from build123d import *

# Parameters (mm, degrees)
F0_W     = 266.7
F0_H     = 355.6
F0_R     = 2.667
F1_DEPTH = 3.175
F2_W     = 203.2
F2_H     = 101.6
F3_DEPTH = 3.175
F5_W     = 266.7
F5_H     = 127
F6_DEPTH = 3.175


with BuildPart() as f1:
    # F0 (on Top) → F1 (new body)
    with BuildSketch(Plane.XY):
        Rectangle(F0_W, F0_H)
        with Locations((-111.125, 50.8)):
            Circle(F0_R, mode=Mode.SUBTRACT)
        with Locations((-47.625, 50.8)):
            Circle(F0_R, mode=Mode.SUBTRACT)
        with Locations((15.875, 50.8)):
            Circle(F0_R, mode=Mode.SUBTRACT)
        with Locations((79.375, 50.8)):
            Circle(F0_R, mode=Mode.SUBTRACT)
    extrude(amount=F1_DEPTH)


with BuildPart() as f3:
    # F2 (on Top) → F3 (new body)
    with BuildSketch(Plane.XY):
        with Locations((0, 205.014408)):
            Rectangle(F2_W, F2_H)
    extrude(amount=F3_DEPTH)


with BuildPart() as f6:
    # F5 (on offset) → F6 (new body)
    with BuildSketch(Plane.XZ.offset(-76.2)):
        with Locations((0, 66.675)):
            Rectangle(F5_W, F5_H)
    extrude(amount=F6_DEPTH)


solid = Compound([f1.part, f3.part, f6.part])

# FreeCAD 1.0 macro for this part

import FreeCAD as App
import Part
import Sketcher

V = App.Vector
Q = App.Units.Quantity

doc = App.newDocument("Part")
body = doc.addObject("PartDesign::Body", "Body")

sketch1 = body.newObject("Sketcher::SketchObject", "Sketch")
sketch1.AttachmentSupport = (doc.getObject("XY_Plane"), [""])
sketch1.MapMode = "FlatFace"
sketch1.addGeometry(Part.LineSegment(V(-133.3, 177.8, 0), V(-133.3, -177.8, 0)), False)
sketch1.addGeometry(Part.LineSegment(V(-133.3, -177.8, 0), V(133.3, -177.8, 0)), False)
sketch1.addGeometry(Part.LineSegment(V(133.3, -177.8, 0), V(133.3, 177.8, 0)), False)
sketch1.addGeometry(Part.LineSegment(V(133.3, 177.8, 0), V(-133.3, 177.8, 0)), False)
sketch1.addGeometry(Part.Circle(V(-111.1, 50.8, 0), V(0, 0, 1), 2.7), False)
sketch1.addGeometry(Part.Circle(V(-47.6, 50.8, 0), V(0, 0, 1), 2.7), False)
sketch1.addGeometry(Part.Circle(V(15.9, 50.8, 0), V(0, 0, 1), 2.7), False)
sketch1.addGeometry(Part.Circle(V(79.4, 50.8, 0), V(0, 0, 1), 2.7), False)
sketch1.addConstraint(Sketcher.Constraint("Coincident", 0, 2, 1, 1))
sketch1.addConstraint(Sketcher.Constraint("Coincident", 1, 2, 2, 1))
sketch1.addConstraint(Sketcher.Constraint("Coincident", 2, 2, 3, 1))
sketch1.addConstraint(Sketcher.Constraint("Coincident", 3, 2, 0, 1))
sketch1.addConstraint(Sketcher.Constraint("Vertical", 0))
sketch1.addConstraint(Sketcher.Constraint("Horizontal", 1))
sketch1.addConstraint(Sketcher.Constraint("Vertical", 2))
sketch1.addConstraint(Sketcher.Constraint("Horizontal", 3))
sketch1.addConstraint(Sketcher.Constraint("Equal", 4, 5))
sketch1.addConstraint(Sketcher.Constraint("Equal", 5, 6))
sketch1.addConstraint(Sketcher.Constraint("Equal", 6, 7))
sketch1.addConstraint(Sketcher.Constraint("Symmetric", 0, 2, 2, 2, -1, 1))
sketch1.addConstraint(Sketcher.Constraint("Horizontal", 4, 3, 5, 3))
sketch1.addConstraint(Sketcher.Constraint("Horizontal", 5, 3, 6, 3))
sketch1.addConstraint(Sketcher.Constraint("Horizontal", 6, 3, 7, 3))
sketch1.addConstraint(Sketcher.Constraint("Diameter", 4, Q("0.21 in")))
sketch1.addConstraint(Sketcher.Constraint("DistanceY", 0, 2, 0, 1, Q("14 in")))
sketch1.addConstraint(Sketcher.Constraint("DistanceX", 1, 1, 1, 2, Q("10.5 in")))
sketch1.addConstraint(Sketcher.Constraint("DistanceY", -1, 1, 4, 3, Q("2 in")))
sketch1.addConstraint(Sketcher.Constraint("DistanceX", 4, 3, 6, 3, Q("5 in")))
sketch1.addConstraint(Sketcher.Constraint("DistanceX", 5, 3, 7, 3, Q("5 in")))
sketch1.addConstraint(Sketcher.Constraint("DistanceX", 4, 3, 5, 3, Q("2.5 in")))
sketch1.addConstraint(Sketcher.Constraint("DistanceX", 4, 3, -1, 1, Q("4.375 in")))
pad1 = body.newObject("PartDesign::Pad", "Pad")
pad1.Profile = sketch1
pad1.Length = Q("0.125 in")
body2 = doc.addObject("PartDesign::Body", "Body001")

sketch2 = body2.newObject("Sketcher::SketchObject", "Sketch001")
sketch2.AttachmentSupport = (doc.getObject("XY_Plane001"), [""])
sketch2.MapMode = "FlatFace"
sketch2.addGeometry(Part.LineSegment(V(-102, 256, 0), V(-102, 154, 0)), False)
sketch2.addGeometry(Part.LineSegment(V(-102, 154, 0), V(102, 154, 0)), False)
sketch2.addGeometry(Part.LineSegment(V(102, 154, 0), V(102, 256, 0)), False)
sketch2.addGeometry(Part.LineSegment(V(102, 256, 0), V(-102, 256, 0)), False)
sketch2.addConstraint(Sketcher.Constraint("Coincident", 0, 2, 1, 1))
sketch2.addConstraint(Sketcher.Constraint("Coincident", 1, 2, 2, 1))
sketch2.addConstraint(Sketcher.Constraint("Coincident", 2, 2, 3, 1))
sketch2.addConstraint(Sketcher.Constraint("Coincident", 3, 2, 0, 1))
sketch2.addConstraint(Sketcher.Constraint("Vertical", 0))
sketch2.addConstraint(Sketcher.Constraint("Horizontal", 1))
sketch2.addConstraint(Sketcher.Constraint("Vertical", 2))
sketch2.addConstraint(Sketcher.Constraint("Horizontal", 3))
sketch2.addConstraint(Sketcher.Constraint("DistanceX", 1, 1, 1, 2, Q("8 in")))
sketch2.addConstraint(Sketcher.Constraint("DistanceY", 0, 2, 0, 1, Q("4 in")))
sketch2.addConstraint(Sketcher.Constraint("DistanceX", 0, 2, -1, 1, Q("4 in")))
sketch2.addConstraint(Sketcher.Constraint("DistanceY", -1, 1, 0, 2, Q("154.214408 mm")))
pad2 = body2.newObject("PartDesign::Pad", "Pad001")
pad2.Profile = sketch2
pad2.Length = Q("0.125 in")
body3 = doc.addObject("PartDesign::Body", "Body002")

sketch3 = body3.newObject("Sketcher::SketchObject", "Sketch002")
sketch3.AttachmentSupport = (doc.getObject("XZ_Plane002"), [""])
sketch3.MapMode = "FlatFace"
sketch3.AttachmentOffset = App.Placement(V(0, 0, -3 * 25.4), App.Rotation())
sketch3.addGeometry(Part.LineSegment(V(-133, 130, 0), V(-133, 3, 0)), False)
sketch3.addGeometry(Part.LineSegment(V(-133, 3, 0), V(133, 3, 0)), False)
sketch3.addGeometry(Part.LineSegment(V(133, 3, 0), V(133, 130, 0)), False)
sketch3.addGeometry(Part.LineSegment(V(133, 130, 0), V(-133, 130, 0)), False)
sketch3.addConstraint(Sketcher.Constraint("Coincident", 0, 2, 1, 1))
sketch3.addConstraint(Sketcher.Constraint("Coincident", 1, 2, 2, 1))
sketch3.addConstraint(Sketcher.Constraint("Coincident", 2, 2, 3, 1))
sketch3.addConstraint(Sketcher.Constraint("Coincident", 3, 2, 0, 1))
sketch3.addConstraint(Sketcher.Constraint("Vertical", 0))
sketch3.addConstraint(Sketcher.Constraint("Horizontal", 1))
sketch3.addConstraint(Sketcher.Constraint("Vertical", 2))
sketch3.addConstraint(Sketcher.Constraint("Horizontal", 3))
sketch3.addConstraint(Sketcher.Constraint("DistanceY", 0, 2, 0, 1, Q("5 in")))
sketch3.addConstraint(Sketcher.Constraint("DistanceX", 1, 1, 1, 2, Q("10.5 in")))
sketch3.addConstraint(Sketcher.Constraint("DistanceX", 0, 2, -1, 1, Q("5.25 in")))
sketch3.addConstraint(Sketcher.Constraint("DistanceY", -1, 1, 0, 2, Q("0.125 in")))
pad3 = body3.newObject("PartDesign::Pad", "Pad002")
pad3.Profile = sketch3
pad3.Length = Q("0.125 in")

doc.recompute()
